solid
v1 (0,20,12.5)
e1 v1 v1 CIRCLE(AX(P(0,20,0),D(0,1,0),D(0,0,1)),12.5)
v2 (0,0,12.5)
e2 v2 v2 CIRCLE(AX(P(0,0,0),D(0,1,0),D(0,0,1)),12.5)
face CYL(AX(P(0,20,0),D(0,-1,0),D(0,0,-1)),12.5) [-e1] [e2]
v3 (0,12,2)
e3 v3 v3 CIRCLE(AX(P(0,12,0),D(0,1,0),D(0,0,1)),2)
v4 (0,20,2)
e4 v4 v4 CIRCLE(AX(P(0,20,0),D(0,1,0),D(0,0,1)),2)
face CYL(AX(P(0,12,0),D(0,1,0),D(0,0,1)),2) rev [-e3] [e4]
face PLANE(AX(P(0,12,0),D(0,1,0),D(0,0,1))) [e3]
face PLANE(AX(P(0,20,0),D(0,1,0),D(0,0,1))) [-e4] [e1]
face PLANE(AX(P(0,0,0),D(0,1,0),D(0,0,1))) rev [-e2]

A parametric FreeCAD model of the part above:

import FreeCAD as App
import Part
import Sketcher
Q = App.Units.Quantity

doc = App.newDocument("Part")
body = doc.addObject("PartDesign::Body", "Body")

sketch1 = body.newObject("Sketcher::SketchObject", "Sketch")
sketch1.AttachmentSupport = (doc.getObject("XZ_Plane"), [""])
sketch1.MapMode = "FlatFace"
sketch1.addGeometry(Part.Circle(App.Vector(0, 0, 0), App.Vector(0, 0, 1), 12), False)
sketch1.addConstraint(Sketcher.Constraint("Coincident", 0, 3, -1, 1))
sketch1.addConstraint(Sketcher.Constraint("Diameter", 0, Q("25 mm")))
pad1 = body.newObject("PartDesign::Pad", "Pad")
pad1.Profile = sketch1
pad1.Length = 20
pad1.Reversed = True

sketch2 = body.newObject("Sketcher::SketchObject", "Sketch001")
sketch2.AttachmentSupport = (doc.getObject("XZ_Plane"), [""])
sketch2.MapMode = "FlatFace"
sketch2.AttachmentOffset = App.Placement(App.Vector(0, 0, -20), App.Rotation())
sketch2.addGeometry(Part.Circle(App.Vector(0, 0, 0), App.Vector(0, 0, 1), 2), False)
sketch2.addConstraint(Sketcher.Constraint("Coincident", 0, 3, -1, 1))
sketch2.addConstraint(Sketcher.Constraint("Diameter", 0, Q("4 mm")))
pocket1 = body.newObject("PartDesign::Pocket", "Pocket")
pocket1.Profile = sketch2
pocket1.Length = 8
pocket1.Reversed = True

doc.recompute()
